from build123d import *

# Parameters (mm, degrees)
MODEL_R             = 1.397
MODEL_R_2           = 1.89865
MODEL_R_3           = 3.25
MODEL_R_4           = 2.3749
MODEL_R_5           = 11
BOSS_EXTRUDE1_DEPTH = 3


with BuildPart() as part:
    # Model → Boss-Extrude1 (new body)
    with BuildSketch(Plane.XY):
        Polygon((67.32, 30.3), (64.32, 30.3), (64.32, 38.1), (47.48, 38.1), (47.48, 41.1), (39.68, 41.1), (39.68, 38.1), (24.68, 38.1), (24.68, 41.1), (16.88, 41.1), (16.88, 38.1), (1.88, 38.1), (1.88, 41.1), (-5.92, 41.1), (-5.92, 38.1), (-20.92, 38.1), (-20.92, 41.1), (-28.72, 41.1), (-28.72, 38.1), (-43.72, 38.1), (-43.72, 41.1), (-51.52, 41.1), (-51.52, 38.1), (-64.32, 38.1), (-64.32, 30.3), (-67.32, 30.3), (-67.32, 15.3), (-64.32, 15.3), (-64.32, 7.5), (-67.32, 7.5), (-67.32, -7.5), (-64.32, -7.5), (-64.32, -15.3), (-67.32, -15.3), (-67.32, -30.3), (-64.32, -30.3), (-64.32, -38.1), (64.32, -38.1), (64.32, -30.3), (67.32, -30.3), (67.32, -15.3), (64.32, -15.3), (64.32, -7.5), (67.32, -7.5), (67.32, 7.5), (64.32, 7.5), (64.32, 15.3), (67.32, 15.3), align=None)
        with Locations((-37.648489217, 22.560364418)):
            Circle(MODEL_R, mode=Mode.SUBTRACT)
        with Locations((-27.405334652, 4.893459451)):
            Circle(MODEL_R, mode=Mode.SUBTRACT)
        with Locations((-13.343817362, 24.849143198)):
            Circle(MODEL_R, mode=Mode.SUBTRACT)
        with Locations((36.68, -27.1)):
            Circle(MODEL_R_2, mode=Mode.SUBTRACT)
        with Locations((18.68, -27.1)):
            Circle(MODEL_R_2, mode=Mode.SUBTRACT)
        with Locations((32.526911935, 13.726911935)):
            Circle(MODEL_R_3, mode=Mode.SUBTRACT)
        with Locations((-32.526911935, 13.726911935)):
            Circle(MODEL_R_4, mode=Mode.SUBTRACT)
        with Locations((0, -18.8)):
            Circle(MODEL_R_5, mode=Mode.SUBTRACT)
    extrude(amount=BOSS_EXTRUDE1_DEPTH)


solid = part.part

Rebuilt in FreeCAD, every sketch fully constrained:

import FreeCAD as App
import Part
import Sketcher

V = App.Vector
Q = App.Units.Quantity

doc = App.newDocument("Part")
body = doc.addObject("PartDesign::Body", "Body")

# Sketch on XY plane
sketch1 = doc.addObject("Sketcher::SketchObject", "Sketch")
body.addObject(sketch1)
sketch1.AttachmentSupport = (doc.XY_Plane, [""])
sketch1.MapMode = "FlatFace"
sketch1.addGeometry([
    Part.LineSegment(V(67.3, 30.3, 0), V(64.3, 30.3, 0)),  # 0
    Part.LineSegment(V(64.3, 30.3, 0), V(64.3, 38.1, 0)),  # 1
    Part.LineSegment(V(64.3, 38.1, 0), V(47.5, 38.1, 0)),  # 2
    Part.LineSegment(V(47.5, 38.1, 0), V(47.5, 41.1, 0)),  # 3
    Part.LineSegment(V(47.5, 41.1, 0), V(39.7, 41.1, 0)),  # 4
    Part.LineSegment(V(39.7, 41.1, 0), V(39.7, 38.1, 0)),  # 5
    Part.LineSegment(V(39.7, 38.1, 0), V(24.7, 38.1, 0)),  # 6
    Part.LineSegment(V(24.7, 38.1, 0), V(24.7, 41.1, 0)),  # 7
    Part.LineSegment(V(24.7, 41.1, 0), V(16.9, 41.1, 0)),  # 8
    Part.LineSegment(V(16.9, 41.1, 0), V(16.9, 38.1, 0)),  # 9
    Part.LineSegment(V(16.9, 38.1, 0), V(1.9, 38.1, 0)),  # 10
    Part.LineSegment(V(1.9, 38.1, 0), V(1.9, 41.1, 0)),  # 11
    Part.LineSegment(V(1.9, 41.1, 0), V(-5.9, 41.1, 0)),  # 12
    Part.LineSegment(V(-5.9, 41.1, 0), V(-5.9, 38.1, 0)),  # 13
    Part.LineSegment(V(-5.9, 38.1, 0), V(-20.9, 38.1, 0)),  # 14
    Part.LineSegment(V(-20.9, 38.1, 0), V(-20.9, 41.1, 0)),  # 15
    Part.LineSegment(V(-20.9, 41.1, 0), V(-28.7, 41.1, 0)),  # 16
    Part.LineSegment(V(-28.7, 41.1, 0), V(-28.7, 38.1, 0)),  # 17
    Part.LineSegment(V(-28.7, 38.1, 0), V(-43.7, 38.1, 0)),  # 18
    Part.LineSegment(V(-43.7, 38.1, 0), V(-43.7, 41.1, 0)),  # 19
    Part.LineSegment(V(-43.7, 41.1, 0), V(-51.5, 41.1, 0)),  # 20
    Part.LineSegment(V(-51.5, 41.1, 0), V(-51.5, 38.1, 0)),  # 21
    Part.LineSegment(V(-51.5, 38.1, 0), V(-64.3, 38.1, 0)),  # 22
    Part.LineSegment(V(-64.3, 38.1, 0), V(-64.3, 30.3, 0)),  # 23
    Part.LineSegment(V(-64.3, 30.3, 0), V(-67.3, 30.3, 0)),  # 24
    Part.LineSegment(V(-67.3, 30.3, 0), V(-67.3, 15.3, 0)),  # 25
    Part.LineSegment(V(-67.3, 15.3, 0), V(-64.3, 15.3, 0)),  # 26
    Part.LineSegment(V(-64.3, 15.3, 0), V(-64.3, 7.5, 0)),  # 27
    Part.LineSegment(V(-64.3, 7.5, 0), V(-67.3, 7.5, 0)),  # 28
    Part.LineSegment(V(-67.3, 7.5, 0), V(-67.3, -7.5, 0)),  # 29
    Part.LineSegment(V(-67.3, -7.5, 0), V(-64.3, -7.5, 0)),  # 30
    Part.LineSegment(V(-64.3, -7.5, 0), V(-64.3, -15.3, 0)),  # 31
    Part.LineSegment(V(-64.3, -15.3, 0), V(-67.3, -15.3, 0)),  # 32
    Part.LineSegment(V(-67.3, -15.3, 0), V(-67.3, -30.3, 0)),  # 33
    Part.LineSegment(V(-67.3, -30.3, 0), V(-64.3, -30.3, 0)),  # 34
    Part.LineSegment(V(-64.3, -30.3, 0), V(-64.3, -38.1, 0)),  # 35
    Part.LineSegment(V(-64.3, -38.1, 0), V(64.3, -38.1, 0)),  # 36
    Part.LineSegment(V(64.3, -38.1, 0), V(64.3, -30.3, 0)),  # 37
    Part.LineSegment(V(64.3, -30.3, 0), V(67.3, -30.3, 0)),  # 38
    Part.LineSegment(V(67.3, -30.3, 0), V(67.3, -15.3, 0)),  # 39
    Part.LineSegment(V(67.3, -15.3, 0), V(64.3, -15.3, 0)),  # 40
    Part.LineSegment(V(64.3, -15.3, 0), V(64.3, -7.5, 0)),  # 41
    Part.LineSegment(V(64.3, -7.5, 0), V(67.3, -7.5, 0)),  # 42
    Part.LineSegment(V(67.3, -7.5, 0), V(67.3, 7.5, 0)),  # 43
    Part.LineSegment(V(67.3, 7.5, 0), V(64.3, 7.5, 0)),  # 44
    Part.LineSegment(V(64.3, 7.5, 0), V(64.3, 15.3, 0)),  # 45
    Part.LineSegment(V(64.3, 15.3, 0), V(67.3, 15.3, 0)),  # 46
    Part.LineSegment(V(67.3, 15.3, 0), V(67.3, 30.3, 0)),  # 47
    Part.Circle(V(18.7, -27.1, 0), V(0, 0, 1), 1.9),  # 48
    Part.Circle(V(0, -18.8, 0), V(0, 0, 1), 11),  # 49
    Part.Circle(V(36.7, -27.1, 0), V(0, 0, 1), 1.9),  # 50
    Part.Circle(V(-27.4, 4.9, 0), V(0, 0, 1), 1.4),  # 51
    Part.Circle(V(-32.5, 13.7, 0), V(0, 0, 1), 2.4),  # 52
    Part.Circle(V(-37.6, 22.6, 0), V(0, 0, 1), 1.4),  # 53
    Part.Circle(V(-13.3, 24.8, 0), V(0, 0, 1), 1.4),  # 54
    Part.Circle(V(32.5, 13.7, 0), V(0, 0, 1), 3.2),  # 55
], False)
sketch1.addConstraint([
    Sketcher.Constraint("Coincident", 0, 2, 1, 1),
    Sketcher.Constraint("Coincident", 1, 2, 2, 1),
    Sketcher.Constraint("Coincident", 2, 2, 3, 1),
    Sketcher.Constraint("Coincident", 3, 2, 4, 1),
    Sketcher.Constraint("Coincident", 4, 2, 5, 1),
    Sketcher.Constraint("Coincident", 5, 2, 6, 1),
    Sketcher.Constraint("Coincident", 6, 2, 7, 1),
    Sketcher.Constraint("Coincident", 7, 2, 8, 1),
    Sketcher.Constraint("Coincident", 8, 2, 9, 1),
    Sketcher.Constraint("Coincident", 9, 2, 10, 1),
    Sketcher.Constraint("Coincident", 10, 2, 11, 1),
    Sketcher.Constraint("Coincident", 11, 2, 12, 1),
    Sketcher.Constraint("Coincident", 12, 2, 13, 1),
    Sketcher.Constraint("Coincident", 13, 2, 14, 1),
    Sketcher.Constraint("Coincident", 14, 2, 15, 1),
    Sketcher.Constraint("Coincident", 15, 2, 16, 1),
    Sketcher.Constraint("Coincident", 16, 2, 17, 1),
    Sketcher.Constraint("Coincident", 17, 2, 18, 1),
    Sketcher.Constraint("Coincident", 18, 2, 19, 1),
    Sketcher.Constraint("Coincident", 19, 2, 20, 1),
    Sketcher.Constraint("Coincident", 20, 2, 21, 1),
    Sketcher.Constraint("Coincident", 21, 2, 22, 1),
    Sketcher.Constraint("Coincident", 22, 2, 23, 1),
    Sketcher.Constraint("Coincident", 23, 2, 24, 1),
    Sketcher.Constraint("Coincident", 24, 2, 25, 1),
    Sketcher.Constraint("Coincident", 25, 2, 26, 1),
    Sketcher.Constraint("Coincident", 26, 2, 27, 1),
    Sketcher.Constraint("Coincident", 27, 2, 28, 1),
    Sketcher.Constraint("Coincident", 28, 2, 29, 1),
    Sketcher.Constraint("Coincident", 29, 2, 30, 1),
    Sketcher.Constraint("Coincident", 30, 2, 31, 1),
    Sketcher.Constraint("Coincident", 31, 2, 32, 1),
    Sketcher.Constraint("Coincident", 32, 2, 33, 1),
    Sketcher.Constraint("Coincident", 33, 2, 34, 1),
    Sketcher.Constraint("Coincident", 34, 2, 35, 1),
    Sketcher.Constraint("Coincident", 35, 2, 36, 1),
    Sketcher.Constraint("Coincident", 36, 2, 37, 1),
    Sketcher.Constraint("Coincident", 37, 2, 38, 1),
    Sketcher.Constraint("Coincident", 38, 2, 39, 1),
    Sketcher.Constraint("Coincident", 39, 2, 40, 1),
    Sketcher.Constraint("Coincident", 40, 2, 41, 1),
    Sketcher.Constraint("Coincident", 41, 2, 42, 1),
    Sketcher.Constraint("Coincident", 42, 2, 43, 1),
    Sketcher.Constraint("Coincident", 43, 2, 44, 1),
    Sketcher.Constraint("Coincident", 44, 2, 45, 1),
    Sketcher.Constraint("Coincident", 45, 2, 46, 1),
    Sketcher.Constraint("Coincident", 46, 2, 47, 1),
    Sketcher.Constraint("Coincident", 47, 2, 0, 1),
    Sketcher.Constraint("Horizontal", 0),
    Sketcher.Constraint("Vertical", 1),
    Sketcher.Constraint("Horizontal", 2),
    Sketcher.Constraint("Vertical", 3),
    Sketcher.Constraint("Horizontal", 4),
    Sketcher.Constraint("Vertical", 5),
    Sketcher.Constraint("Horizontal", 6),
    Sketcher.Constraint("Vertical", 7),
    Sketcher.Constraint("Horizontal", 8),
    Sketcher.Constraint("Vertical", 9),
    Sketcher.Constraint("Horizontal", 10),
    Sketcher.Constraint("Vertical", 11),
    Sketcher.Constraint("Horizontal", 12),
    Sketcher.Constraint("Vertical", 13),
    Sketcher.Constraint("Horizontal", 14),
    Sketcher.Constraint("Vertical", 15),
    Sketcher.Constraint("Horizontal", 16),
    Sketcher.Constraint("Vertical", 17),
    Sketcher.Constraint("Horizontal", 18),
    Sketcher.Constraint("Vertical", 19),
    Sketcher.Constraint("Horizontal", 20),
    Sketcher.Constraint("Vertical", 21),
    Sketcher.Constraint("Horizontal", 22),
    Sketcher.Constraint("Vertical", 23),
    Sketcher.Constraint("Horizontal", 24),
    Sketcher.Constraint("Vertical", 25),
    Sketcher.Constraint("Horizontal", 26),
    Sketcher.Constraint("Vertical", 27),
    Sketcher.Constraint("Horizontal", 28),
    Sketcher.Constraint("Vertical", 29),
    Sketcher.Constraint("Horizontal", 30),
    Sketcher.Constraint("Vertical", 31),
    Sketcher.Constraint("Horizontal", 32),
    Sketcher.Constraint("Vertical", 33),
    Sketcher.Constraint("Horizontal", 34),
    Sketcher.Constraint("Vertical", 35),
    Sketcher.Constraint("Horizontal", 36),
    Sketcher.Constraint("Vertical", 37),
    Sketcher.Constraint("Horizontal", 38),
    Sketcher.Constraint("Vertical", 39),
    Sketcher.Constraint("Horizontal", 40),
    Sketcher.Constraint("Vertical", 41),
    Sketcher.Constraint("Horizontal", 42),
    Sketcher.Constraint("Vertical", 43),
    Sketcher.Constraint("Horizontal", 44),
    Sketcher.Constraint("Vertical", 45),
    Sketcher.Constraint("Horizontal", 46),
    Sketcher.Constraint("Vertical", 47),
    Sketcher.Constraint("Equal", 48, 50),
    Sketcher.Constraint("Equal", 51, 53),
    Sketcher.Constraint("Equal", 53, 54),
    Sketcher.Constraint("Symmetric", 0, 2, 34, 2, -1, 1),
    Sketcher.Constraint("Symmetric", 22, 2, 36, 2, -1, 1),
    Sketcher.Constraint("Symmetric", 24, 2, 38, 2, -1, 1),
    Sketcher.Constraint("Symmetric", 26, 2, 40, 2, -1, 1),
    Sketcher.Constraint("Symmetric", 28, 2, 42, 2, -1, 1),
    Sketcher.Constraint("Symmetric", 30, 2, 44, 2, -1, 1),
    Sketcher.Constraint("Symmetric", 32, 2, 46, 2, -1, 1),
    Sketcher.Constraint("Symmetric", 52, 3, 55, 3, -2),
    Sketcher.Constraint("Symmetric", 1, 2, 22, 2, -2),
    Sketcher.Constraint("Symmetric", 33, 2, 38, 2, -2),
    Sketcher.Constraint("Symmetric", 31, 2, 40, 2, -2),
    Sketcher.Constraint("PointOnObject", 49, 3, -2),
    Sketcher.Constraint("Horizontal", 48, 3, 50, 3),
    Sketcher.Constraint("Horizontal", 2, 2, 5, 2),
    Sketcher.Constraint("Horizontal", 4, 2, 7, 2),
    Sketcher.Constraint("Horizontal", 6, 2, 9, 2),
    Sketcher.Constraint("Horizontal", 8, 2, 11, 2),
    Sketcher.Constraint("Horizontal", 10, 2, 13, 2),
    Sketcher.Constraint("Horizontal", 12, 2, 15, 2),
    Sketcher.Constraint("Horizontal", 14, 2, 17, 2),
    Sketcher.Constraint("Horizontal", 16, 2, 19, 2),
    Sketcher.Constraint("Horizontal", 30, 2, 41, 2),
    Sketcher.Constraint("Vertical", 23, 2, 26, 2),
    Sketcher.Constraint("Vertical", 25, 2, 28, 2),
    Sketcher.Constraint("Equal", 4, 8),
    Sketcher.Constraint("Equal", 6, 10),
    Sketcher.Constraint("Equal", 8, 12),
    Sketcher.Constraint("Equal", 10, 14),
    Sketcher.Constraint("Equal", 12, 16),
    Sketcher.Constraint("Equal", 14, 18),
    Sketcher.Constraint("Equal", 16, 20),
    Sketcher.Constraint("Equal", 20, 1),
    Sketcher.Constraint("Equal", 46, 3),
    Sketcher.Constraint("Equal", 18, 25),
    Sketcher.Constraint("Equal", 23, 27),
    Sketcher.Constraint("Equal", 25, 29),
    Sketcher.Constraint("Diameter", 49, Q("22 mm")),
    Sketcher.Constraint("Diameter", 55, Q("6.5 mm")),
    Sketcher.Constraint("DistanceX", 0, 2, 0, 1, Q("3 mm")),
    Sketcher.Constraint("DistanceX", 6, 2, 6, 1, Q("15 mm")),
    Sketcher.Constraint("Diameter", 51, Q("2.794 mm")),
    Sketcher.Constraint("DistanceX", 4, 2, 4, 1, Q("7.8 mm")),
    Sketcher.Constraint("DistanceX", 22, 2, 22, 1, Q("12.8 mm")),
    Sketcher.Constraint("DistanceX", 48, 3, 50, 3, Q("18 mm")),
    Sketcher.Constraint("DistanceY", 36, 2, 50, 3, Q("11 mm")),
    Sketcher.Constraint("Diameter", 48, Q("3.7973 mm")),
    Sketcher.Constraint("Diameter", 52, Q("4.7498 mm")),
    Sketcher.Constraint("DistanceX", 2, 2, 2, 1, Q("16.84 mm")),
    Sketcher.Constraint("DistanceY", 49, 3, -1, 1, Q("18.8 mm")),
    Sketcher.Constraint("DistanceX", 50, 3, 2, 2, Q("10.8 mm")),
    Sketcher.Constraint("DistanceY", -1, 1, 51, 3, Q("4.893459 mm")),
    Sketcher.Constraint("DistanceX", 52, 3, -1, 1, Q("32.526912 mm")),
    Sketcher.Constraint("DistanceY", -1, 1, 52, 3, Q("13.726912 mm")),
    Sketcher.Constraint("DistanceX", 53, 3, -1, 1, Q("37.648489 mm")),
    Sketcher.Constraint("DistanceY", 52, 3, 54, 3, Q("11.122231 mm")),
    Sketcher.Constraint("DistanceX", 53, 3, 54, 3, Q("24.304672 mm")),
    Sketcher.Constraint("DistanceY", 53, 3, 54, 3, Q("2.288779 mm")),
    Sketcher.Constraint("DistanceX", 51, 3, -1, 1, Q("27.405335 mm")),
])
pad1 = doc.addObject("PartDesign::Pad", "Pad")
body.addObject(pad1)
pad1.Profile = sketch1
pad1.Length = 3

doc.recompute()
